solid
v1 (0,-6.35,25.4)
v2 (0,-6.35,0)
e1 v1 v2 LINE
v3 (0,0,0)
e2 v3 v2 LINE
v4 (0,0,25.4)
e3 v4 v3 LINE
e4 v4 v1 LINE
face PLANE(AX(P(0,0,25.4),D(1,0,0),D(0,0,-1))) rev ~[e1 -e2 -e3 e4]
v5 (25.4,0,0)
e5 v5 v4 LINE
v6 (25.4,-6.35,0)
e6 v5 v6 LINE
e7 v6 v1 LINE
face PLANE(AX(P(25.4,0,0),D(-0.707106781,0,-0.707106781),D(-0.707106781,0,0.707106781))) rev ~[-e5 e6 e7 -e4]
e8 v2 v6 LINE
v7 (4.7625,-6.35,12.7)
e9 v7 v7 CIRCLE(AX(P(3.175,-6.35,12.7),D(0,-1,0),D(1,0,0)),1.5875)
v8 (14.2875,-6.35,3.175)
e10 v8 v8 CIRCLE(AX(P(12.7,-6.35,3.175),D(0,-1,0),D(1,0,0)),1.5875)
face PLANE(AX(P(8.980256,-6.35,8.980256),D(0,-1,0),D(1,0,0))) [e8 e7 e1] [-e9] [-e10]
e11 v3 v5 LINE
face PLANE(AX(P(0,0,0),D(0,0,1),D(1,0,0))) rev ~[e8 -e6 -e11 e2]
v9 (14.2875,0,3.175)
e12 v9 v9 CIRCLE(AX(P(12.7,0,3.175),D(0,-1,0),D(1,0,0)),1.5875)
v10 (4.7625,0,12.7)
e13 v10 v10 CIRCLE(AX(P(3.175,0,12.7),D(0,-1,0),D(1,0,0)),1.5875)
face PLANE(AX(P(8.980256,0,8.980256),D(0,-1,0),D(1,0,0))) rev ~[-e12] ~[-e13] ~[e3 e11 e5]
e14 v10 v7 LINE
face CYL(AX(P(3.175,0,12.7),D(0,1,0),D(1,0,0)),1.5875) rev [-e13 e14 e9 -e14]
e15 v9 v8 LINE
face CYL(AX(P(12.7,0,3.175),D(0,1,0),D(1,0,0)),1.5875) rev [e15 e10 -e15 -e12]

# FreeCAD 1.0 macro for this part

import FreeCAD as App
import Part
import Sketcher
Q = App.Units.Quantity

doc = App.newDocument("Part")
body = doc.addObject("PartDesign::Body", "Body")

sketch1 = body.newObject("Sketcher::SketchObject", "Sketch")
sketch1.AttachmentSupport = (doc.getObject("XZ_Plane"), [""])
sketch1.MapMode = "FlatFace"
sketch1.addGeometry(Part.LineSegment(App.Vector(0, 25.4, 0), App.Vector(0, 0, 0)), False)
sketch1.addGeometry(Part.LineSegment(App.Vector(0, 0, 0), App.Vector(25.4, 0, 0)), False)
sketch1.addGeometry(Part.LineSegment(App.Vector(25.4, 0, 0), App.Vector(0, 25.4, 0)), False)
sketch1.addGeometry(Part.Circle(App.Vector(12.7, 3.2, 0), App.Vector(0, 0, 1), 1.6), False)
sketch1.addGeometry(Part.Circle(App.Vector(3.2, 12.7, 0), App.Vector(0, 0, 1), 1.6), False)
sketch1.addConstraint(Sketcher.Constraint("Coincident", 0, 2, 1, 1))
sketch1.addConstraint(Sketcher.Constraint("Coincident", 1, 2, 2, 1))
sketch1.addConstraint(Sketcher.Constraint("Coincident", 2, 2, 0, 1))
sketch1.addConstraint(Sketcher.Constraint("Vertical", 0))
sketch1.addConstraint(Sketcher.Constraint("Horizontal", 1))
sketch1.addConstraint(Sketcher.Constraint("Coincident", 0, 2, -1, 1))
sketch1.addConstraint(Sketcher.Constraint("Equal", 3, 4))
sketch1.addConstraint(Sketcher.Constraint("Equal", 1, 0))
sketch1.addConstraint(Sketcher.Constraint("DistanceX", 1, 1, 1, 2, Q("1 in")))
sketch1.addConstraint(Sketcher.Constraint("Diameter", 3, Q("0.125 in")))
sketch1.addConstraint(Sketcher.Constraint("DistanceX", -1, 1, 3, 3, Q("0.5 in")))
sketch1.addConstraint(Sketcher.Constraint("DistanceY", -1, 1, 4, 3, Q("0.5 in")))
sketch1.addConstraint(Sketcher.Constraint("DistanceY", -1, 1, 3, 3, Q("0.125 in")))
sketch1.addConstraint(Sketcher.Constraint("DistanceX", -1, 1, 4, 3, Q("0.125 in")))
pad1 = body.newObject("PartDesign::Pad", "Pad")
pad1.Profile = sketch1
pad1.Length = Q("0.25 in")

doc.recompute()
